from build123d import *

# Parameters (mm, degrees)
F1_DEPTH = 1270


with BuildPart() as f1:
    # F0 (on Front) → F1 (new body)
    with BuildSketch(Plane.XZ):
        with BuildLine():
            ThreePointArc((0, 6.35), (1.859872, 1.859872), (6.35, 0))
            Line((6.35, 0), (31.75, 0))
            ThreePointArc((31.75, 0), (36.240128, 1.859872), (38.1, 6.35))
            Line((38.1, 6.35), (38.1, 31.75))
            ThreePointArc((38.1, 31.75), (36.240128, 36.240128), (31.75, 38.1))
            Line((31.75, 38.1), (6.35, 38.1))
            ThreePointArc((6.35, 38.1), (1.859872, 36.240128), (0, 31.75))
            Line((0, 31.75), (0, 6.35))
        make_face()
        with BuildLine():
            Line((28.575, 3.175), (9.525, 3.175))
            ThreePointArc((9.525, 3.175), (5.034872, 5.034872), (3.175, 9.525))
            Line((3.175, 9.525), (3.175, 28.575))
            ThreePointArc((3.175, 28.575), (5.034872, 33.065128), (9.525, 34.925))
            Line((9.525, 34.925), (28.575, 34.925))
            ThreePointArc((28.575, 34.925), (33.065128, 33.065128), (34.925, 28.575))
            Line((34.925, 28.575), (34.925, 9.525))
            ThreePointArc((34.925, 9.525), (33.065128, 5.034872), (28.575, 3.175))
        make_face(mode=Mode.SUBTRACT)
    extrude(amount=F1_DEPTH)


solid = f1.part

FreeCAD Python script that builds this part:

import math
import FreeCAD as App
import Part
import Sketcher
Q = App.Units.Quantity

doc = App.newDocument("Part")
params = doc.addObject("Spreadsheet::Sheet", "Params")
for row, (alias, value) in enumerate([
    ("sketch1_width", "1 in"),
    ("sketch1_radius", "0.25 in"),
    ("sketch1_width2", "0.75 in"),
    ("pad1_length", "50 in"),
], start=1):
    params.set(f"A{row}", alias)
    params.set(f"B{row}", "=" + value)
    params.setAlias(f"B{row}", alias)

body = doc.addObject("PartDesign::Body", "Body")

# Sketch on XZ plane
sketch1 = body.newObject("Sketcher::SketchObject", "Sketch")
sketch1.AttachmentSupport = (doc.getObject("XZ_Plane"), [""])
sketch1.MapMode = "FlatFace"
sketch1.addGeometry([
    Part.ArcOfCircle(Part.Circle(App.Vector(6, 6, 0), App.Vector(0, 0, 1), 6), math.radians(-180), math.radians(-90)),  # 0
    Part.LineSegment(App.Vector(6, 0, 0), App.Vector(32, 0, 0)),  # 1
    Part.ArcOfCircle(Part.Circle(App.Vector(32, 6, 0), App.Vector(0, 0, 1), 6), math.radians(-90), math.radians(0)),  # 2
    Part.LineSegment(App.Vector(38, 6, 0), App.Vector(38, 32, 0)),  # 3
    Part.ArcOfCircle(Part.Circle(App.Vector(32, 32, 0), App.Vector(0, 0, 1), 6), math.radians(0), math.radians(90)),  # 4
    Part.LineSegment(App.Vector(32, 38, 0), App.Vector(6, 38, 0)),  # 5
    Part.ArcOfCircle(Part.Circle(App.Vector(6, 32, 0), App.Vector(0, 0, 1), 6), math.radians(90), math.radians(180)),  # 6
    Part.LineSegment(App.Vector(0, 32, 0), App.Vector(0, 6, 0)),  # 7
    Part.ArcOfCircle(Part.Circle(App.Vector(29, 10, 0), App.Vector(0, 0, 1), 6), math.radians(-90), math.radians(0)),  # 8
    Part.LineSegment(App.Vector(29, 3, 0), App.Vector(10, 3, 0)),  # 9
    Part.ArcOfCircle(Part.Circle(App.Vector(10, 10, 0), App.Vector(0, 0, 1), 6), math.radians(-180), math.radians(-90)),  # 10
    Part.LineSegment(App.Vector(3, 10, 0), App.Vector(3, 29, 0)),  # 11
    Part.ArcOfCircle(Part.Circle(App.Vector(10, 29, 0), App.Vector(0, 0, 1), 6), math.radians(90), math.radians(180)),  # 12
    Part.LineSegment(App.Vector(10, 35, 0), App.Vector(29, 35, 0)),  # 13
    Part.ArcOfCircle(Part.Circle(App.Vector(29, 29, 0), App.Vector(0, 0, 1), 6), math.radians(0), math.radians(90)),  # 14
    Part.LineSegment(App.Vector(35, 29, 0), App.Vector(35, 10, 0)),  # 15
], False)
sketch1.addConstraint([
    Sketcher.Constraint("Tangent", 0, 2, 1, 1),
    Sketcher.Constraint("Tangent", 1, 2, 2, 1),
    Sketcher.Constraint("Tangent", 2, 2, 3, 1),
    Sketcher.Constraint("Tangent", 3, 2, 4, 1),
    Sketcher.Constraint("Tangent", 4, 2, 5, 1),
    Sketcher.Constraint("Tangent", 5, 2, 6, 1),
    Sketcher.Constraint("Tangent", 6, 2, 7, 1),
    Sketcher.Constraint("Tangent", 7, 2, 0, 1),
    Sketcher.Constraint("Tangent", 8, 1, 9, 1),
    Sketcher.Constraint("Tangent", 9, 2, 10, 2),
    Sketcher.Constraint("Tangent", 10, 1, 11, 1),
    Sketcher.Constraint("Tangent", 11, 2, 12, 2),
    Sketcher.Constraint("Tangent", 12, 1, 13, 1),
    Sketcher.Constraint("Tangent", 13, 2, 14, 2),
    Sketcher.Constraint("Tangent", 14, 1, 15, 1),
    Sketcher.Constraint("Tangent", 15, 2, 8, 2),
    Sketcher.Constraint("Horizontal", 1),
    Sketcher.Constraint("Vertical", 3),
    Sketcher.Constraint("Horizontal", 5),
    Sketcher.Constraint("Vertical", 7),
    Sketcher.Constraint("Horizontal", 9),
    Sketcher.Constraint("Vertical", 11),
    Sketcher.Constraint("Horizontal", 13),
    Sketcher.Constraint("Vertical", 15),
    Sketcher.Constraint("Equal", 0, 2),
    Sketcher.Constraint("Equal", 2, 4),
    Sketcher.Constraint("Equal", 4, 6),
    Sketcher.Constraint("Equal", 6, 8),
    Sketcher.Constraint("Equal", 8, 10),
    Sketcher.Constraint("Equal", 10, 12),
    Sketcher.Constraint("Equal", 12, 14),
    Sketcher.Constraint("PointOnObject", 0, 2, -1),
    Sketcher.Constraint("PointOnObject", 6, 2, -2),
    Sketcher.Constraint("Equal", 5, 3),
    Sketcher.Constraint("Equal", 13, 11),
    Sketcher.Constraint("DistanceX", 1, 1, 1, 2, Q("1 in")),
    Sketcher.Constraint("Radius", 0, Q("0.25 in")),
    Sketcher.Constraint("DistanceX", 9, 2, 9, 1, Q("0.75 in")),
    Sketcher.Constraint("DistanceX", -1, 1, 8, 3, Q("1.125 in")),
    Sketcher.Constraint("DistanceY", -1, 1, 8, 3, Q("0.375 in")),
])
sketch1.setExpression("Constraints[35]", "Params.sketch1_width")
sketch1.setExpression("Constraints[36]", "Params.sketch1_radius")
sketch1.setExpression("Constraints[37]", "Params.sketch1_width2")
pad1 = body.newObject("PartDesign::Pad", "Pad")
pad1.Profile = sketch1
pad1.setExpression("Length", "Params.pad1_length")

doc.recompute()
